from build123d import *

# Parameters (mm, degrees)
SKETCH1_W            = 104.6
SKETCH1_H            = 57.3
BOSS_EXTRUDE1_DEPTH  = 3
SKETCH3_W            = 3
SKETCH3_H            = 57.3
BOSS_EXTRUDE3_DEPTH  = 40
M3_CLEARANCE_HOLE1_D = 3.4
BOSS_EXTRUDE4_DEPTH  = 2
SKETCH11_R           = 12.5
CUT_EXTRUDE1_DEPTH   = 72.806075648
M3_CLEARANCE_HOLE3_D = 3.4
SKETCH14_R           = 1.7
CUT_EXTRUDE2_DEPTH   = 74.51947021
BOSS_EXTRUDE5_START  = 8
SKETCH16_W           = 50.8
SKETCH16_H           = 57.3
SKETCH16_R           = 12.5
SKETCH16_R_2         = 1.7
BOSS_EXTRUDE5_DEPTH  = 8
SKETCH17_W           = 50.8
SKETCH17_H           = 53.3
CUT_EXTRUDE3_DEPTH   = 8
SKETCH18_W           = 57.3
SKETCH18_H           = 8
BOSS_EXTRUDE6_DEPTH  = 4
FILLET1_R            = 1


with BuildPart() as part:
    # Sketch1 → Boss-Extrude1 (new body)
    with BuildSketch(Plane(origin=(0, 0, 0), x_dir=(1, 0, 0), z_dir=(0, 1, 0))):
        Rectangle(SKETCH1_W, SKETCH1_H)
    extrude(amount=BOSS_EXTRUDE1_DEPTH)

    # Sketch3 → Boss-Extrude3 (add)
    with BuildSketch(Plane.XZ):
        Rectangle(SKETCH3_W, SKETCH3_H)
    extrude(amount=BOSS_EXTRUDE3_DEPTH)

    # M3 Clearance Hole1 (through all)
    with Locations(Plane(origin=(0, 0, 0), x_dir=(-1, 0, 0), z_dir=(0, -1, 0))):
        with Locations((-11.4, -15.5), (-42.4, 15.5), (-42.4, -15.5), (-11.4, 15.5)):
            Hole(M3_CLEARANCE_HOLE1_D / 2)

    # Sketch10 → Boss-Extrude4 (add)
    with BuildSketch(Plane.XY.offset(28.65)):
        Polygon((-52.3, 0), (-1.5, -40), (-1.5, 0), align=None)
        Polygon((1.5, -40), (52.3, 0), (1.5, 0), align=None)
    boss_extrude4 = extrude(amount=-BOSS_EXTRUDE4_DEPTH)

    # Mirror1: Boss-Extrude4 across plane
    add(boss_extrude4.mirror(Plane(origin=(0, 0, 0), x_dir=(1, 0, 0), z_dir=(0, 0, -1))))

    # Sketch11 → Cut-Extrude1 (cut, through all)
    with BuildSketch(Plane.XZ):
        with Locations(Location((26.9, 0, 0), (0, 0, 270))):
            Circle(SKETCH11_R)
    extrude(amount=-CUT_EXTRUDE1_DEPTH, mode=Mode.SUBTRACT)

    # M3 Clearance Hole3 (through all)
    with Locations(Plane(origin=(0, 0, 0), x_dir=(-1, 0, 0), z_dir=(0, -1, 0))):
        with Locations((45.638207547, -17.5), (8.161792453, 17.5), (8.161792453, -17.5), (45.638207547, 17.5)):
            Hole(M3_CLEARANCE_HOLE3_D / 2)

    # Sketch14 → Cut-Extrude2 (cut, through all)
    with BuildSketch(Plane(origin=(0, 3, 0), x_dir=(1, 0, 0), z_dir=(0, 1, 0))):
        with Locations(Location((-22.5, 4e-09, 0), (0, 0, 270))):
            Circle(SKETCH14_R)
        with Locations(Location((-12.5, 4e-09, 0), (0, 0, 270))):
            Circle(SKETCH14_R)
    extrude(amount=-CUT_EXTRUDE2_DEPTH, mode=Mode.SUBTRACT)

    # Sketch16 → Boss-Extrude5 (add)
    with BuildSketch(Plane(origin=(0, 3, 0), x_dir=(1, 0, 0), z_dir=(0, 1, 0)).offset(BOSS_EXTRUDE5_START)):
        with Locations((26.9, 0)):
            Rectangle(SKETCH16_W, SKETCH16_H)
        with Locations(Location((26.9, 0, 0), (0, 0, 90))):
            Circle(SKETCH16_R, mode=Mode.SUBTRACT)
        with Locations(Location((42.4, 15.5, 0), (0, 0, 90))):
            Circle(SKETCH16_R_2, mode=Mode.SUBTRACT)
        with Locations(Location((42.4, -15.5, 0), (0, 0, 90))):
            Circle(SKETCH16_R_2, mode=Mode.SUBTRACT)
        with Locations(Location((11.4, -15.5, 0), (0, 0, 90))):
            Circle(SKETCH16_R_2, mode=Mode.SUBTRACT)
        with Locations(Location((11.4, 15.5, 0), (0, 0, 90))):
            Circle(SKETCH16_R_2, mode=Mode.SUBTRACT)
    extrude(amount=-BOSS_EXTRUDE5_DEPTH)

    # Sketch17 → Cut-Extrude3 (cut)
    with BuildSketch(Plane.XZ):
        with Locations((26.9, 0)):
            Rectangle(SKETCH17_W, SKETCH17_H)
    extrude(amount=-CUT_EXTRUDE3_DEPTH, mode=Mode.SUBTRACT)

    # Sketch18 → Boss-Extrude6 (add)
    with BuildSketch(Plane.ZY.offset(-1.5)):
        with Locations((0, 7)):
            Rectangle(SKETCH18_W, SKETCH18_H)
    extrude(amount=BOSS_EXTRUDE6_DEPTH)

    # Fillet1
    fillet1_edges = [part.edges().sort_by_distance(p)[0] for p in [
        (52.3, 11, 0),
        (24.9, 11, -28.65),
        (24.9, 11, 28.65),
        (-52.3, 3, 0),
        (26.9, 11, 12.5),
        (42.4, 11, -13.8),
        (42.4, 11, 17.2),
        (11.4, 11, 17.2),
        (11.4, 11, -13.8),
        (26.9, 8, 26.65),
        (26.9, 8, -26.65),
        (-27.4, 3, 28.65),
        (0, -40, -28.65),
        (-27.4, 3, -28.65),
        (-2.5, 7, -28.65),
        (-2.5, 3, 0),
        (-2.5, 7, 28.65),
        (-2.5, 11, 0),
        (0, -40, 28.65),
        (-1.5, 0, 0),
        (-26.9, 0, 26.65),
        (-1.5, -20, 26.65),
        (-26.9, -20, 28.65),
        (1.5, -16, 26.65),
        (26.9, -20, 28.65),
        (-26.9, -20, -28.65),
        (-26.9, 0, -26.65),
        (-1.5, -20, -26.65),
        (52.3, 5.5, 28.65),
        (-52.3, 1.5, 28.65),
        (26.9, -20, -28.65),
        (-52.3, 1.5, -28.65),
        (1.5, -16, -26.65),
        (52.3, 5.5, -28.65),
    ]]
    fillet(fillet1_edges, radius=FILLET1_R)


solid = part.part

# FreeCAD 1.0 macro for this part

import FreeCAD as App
import Part
import Sketcher

V = App.Vector


def edges_at(feature, points):
    """Names of the edges that pass closest to the given points."""
    edges = feature.Shape.Edges
    near = lambda p: min(range(len(edges)), key=lambda i: edges[i].distToShape(Part.Vertex(*p))[0])
    return sorted({f"Edge{near(p) + 1}" for p in points})


def add_polygon(sketch, points):
    """Adds a closed chain of lines whose ends are joined by coincident constraints."""
    first, n = sketch.GeometryCount, len(points)
    for a, b in zip(points, points[1:] + points[:1]):
        sketch.addGeometry(Part.LineSegment(App.Vector(*a, 0), App.Vector(*b, 0)), False)
    for i in range(n):
        sketch.addConstraint(Sketcher.Constraint("Coincident", first + i, 2, first + (i + 1) % n, 1))

doc = App.newDocument("Part")
body = doc.addObject("PartDesign::Body", "Body")

sketch1 = body.newObject("Sketcher::SketchObject", "Sketch")
sketch1.AttachmentSupport = (doc.getObject("XZ_Plane"), [""])
sketch1.MapMode = "FlatFace"
add_polygon(sketch1, [(-52, -29), (-52, 29), (52, 29), (52, -29)])
sketch1.addConstraint([
    Sketcher.Constraint("Vertical", 0),
    Sketcher.Constraint("Horizontal", 1),
    Sketcher.Constraint("Vertical", 2),
    Sketcher.Constraint("Horizontal", 3),
    Sketcher.Constraint("Symmetric", 0, 2, 2, 2, -1, 1),
    Sketcher.Constraint("DistanceX", 1, 1, 1, 2, 104.6),
    Sketcher.Constraint("DistanceY", 0, 1, 0, 2, 57.3),
])
pad1 = body.newObject("PartDesign::Pad", "Pad")
pad1.Profile = sketch1
pad1.Length = 3
pad1.Reversed = True

sketch2 = body.newObject("Sketcher::SketchObject", "Sketch001")
sketch2.AttachmentSupport = (doc.getObject("XZ_Plane"), [""])
sketch2.MapMode = "FlatFace"
add_polygon(sketch2, [(-1.5, 28.6), (-1.5, -28.6), (1.5, -28.6), (1.5, 28.6)])
sketch2.addConstraint([
    Sketcher.Constraint("Vertical", 0),
    Sketcher.Constraint("Horizontal", 1),
    Sketcher.Constraint("Vertical", 2),
    Sketcher.Constraint("Horizontal", 3),
    Sketcher.Constraint("Symmetric", 0, 2, 2, 2, -1, 1),
    Sketcher.Constraint("DistanceX", 1, 1, 1, 2, 3.0),
    Sketcher.Constraint("DistanceY", 0, 2, 0, 1, 57.3),
])
pad2 = body.newObject("PartDesign::Pad", "Pad001")
pad2.Profile = sketch2
pad2.Length = 40

sketch3 = body.newObject("Sketcher::SketchObject", "Sketch002")
sketch3.AttachmentSupport = (doc.getObject("XZ_Plane"), [""])
sketch3.MapMode = "FlatFace"
sketch3.addGeometry([
    Part.Circle(V(11.4, 15.5, 0), V(0, 0, 1), 1.7),
    Part.Circle(V(42.4, -15.5, 0), V(0, 0, 1), 1.7),
    Part.Circle(V(42.4, 15.5, 0), V(0, 0, 1), 1.7),
    Part.Circle(V(11.4, -15.5, 0), V(0, 0, 1), 1.7),
], False)
sketch3.addConstraint([
    Sketcher.Constraint("Equal", 0, 1),
    Sketcher.Constraint("Equal", 1, 2),
    Sketcher.Constraint("Equal", 2, 3),
    Sketcher.Constraint("Symmetric", 1, 3, 2, 3, -1),
    Sketcher.Constraint("Symmetric", 0, 3, 3, 3, -1),
    Sketcher.Constraint("Horizontal", 0, 3, 2, 3),
    Sketcher.Constraint("Diameter", 0, 3.4),
    Sketcher.Constraint("DistanceX", 0, 3, 1, 3, 31.0),
    Sketcher.Constraint("DistanceY", 1, 3, 0, 3, 31.0),
    Sketcher.Constraint("DistanceX", -1, 1, 0, 3, 11.4),
])
doc.recompute()
hole = body.newObject("PartDesign::Hole", "Hole")
hole.Profile = sketch3
hole.ThreadType = "None"
hole.Diameter = 3.4
hole.DepthType = "ThroughAll"

sketch4 = body.newObject("Sketcher::SketchObject", "Sketch003")
sketch4.AttachmentSupport = (doc.getObject("XY_Plane"), [""])
sketch4.MapMode = "FlatFace"
sketch4.AttachmentOffset = App.Placement(V(0, 0, 28.65), App.Rotation())
add_polygon(sketch4, [(-52, 0), (-2, -40), (-2, 0)])
add_polygon(sketch4, [(2, -40), (52, 0), (2, 0)])
sketch4.addConstraint([
    Sketcher.Constraint("Vertical", 1),
    Sketcher.Constraint("Horizontal", 2),
    Sketcher.Constraint("Horizontal", 4),
    Sketcher.Constraint("Vertical", 5),
    Sketcher.Constraint("Symmetric", 2, 2, 3, 2, -1, 1),
    Sketcher.Constraint("Symmetric", 1, 2, 4, 2, -2),
    Sketcher.Constraint("Horizontal", 0, 2, 5, 2),
    Sketcher.Constraint("DistanceY", 1, 1, 1, 2, 40.0),
    Sketcher.Constraint("DistanceX", 2, 2, 2, 1, 50.8),
    Sketcher.Constraint("DistanceX", 1, 2, 4, 2, 3.0),
])
pad3 = body.newObject("PartDesign::Pad", "Pad002")
pad3.Profile = sketch4
pad3.Length = 2
pad3.Reversed = True
doc.recompute()

mirrored = body.newObject("PartDesign::Mirrored", "Mirrored")
mirrored.Originals = [pad3]
mirrored.MirrorPlane = (doc.getObject("XY_Plane"), [""])
body.Tip = mirrored

sketch5 = body.newObject("Sketcher::SketchObject", "Sketch004")
sketch5.AttachmentSupport = (doc.getObject("XZ_Plane"), [""])
sketch5.MapMode = "FlatFace"
sketch5.addGeometry(Part.Circle(V(27, 0, 0), V(0, 0, 1), 12), False)
sketch5.addConstraint([
    Sketcher.Constraint("PointOnObject", 0, 3, -1),
    Sketcher.Constraint("Diameter", 0, 25.0),
    Sketcher.Constraint("DistanceX", -1, 1, 0, 3, 26.9),
])
pocket1 = body.newObject("PartDesign::Pocket", "Pocket")
pocket1.Profile = sketch5
pocket1.Type = "ThroughAll"

sketch6 = body.newObject("Sketcher::SketchObject", "Sketch005")
sketch6.AttachmentSupport = (doc.getObject("XZ_Plane"), [""])
sketch6.MapMode = "FlatFace"
sketch6.addGeometry([
    Part.Circle(V(-45.6, 17.5, 0), V(0, 0, 1), 1.7),
    Part.Circle(V(-8.2, -17.5, 0), V(0, 0, 1), 1.7),
    Part.Circle(V(-8.2, 17.5, 0), V(0, 0, 1), 1.7),
    Part.Circle(V(-45.6, -17.5, 0), V(0, 0, 1), 1.7),
], False)
sketch6.addConstraint([
    Sketcher.Constraint("Equal", 0, 1),
    Sketcher.Constraint("Equal", 1, 2),
    Sketcher.Constraint("Equal", 2, 3),
    Sketcher.Constraint("Symmetric", 1, 3, 2, 3, -1),
    Sketcher.Constraint("Symmetric", 0, 3, 3, 3, -1),
    Sketcher.Constraint("Horizontal", 0, 3, 2, 3),
    Sketcher.Constraint("Diameter", 0, 3.4),
    Sketcher.Constraint("DistanceY", 1, 3, 0, 3, 35.0),
    Sketcher.Constraint("DistanceX", 0, 3, -1, 1, 45.638208),
    Sketcher.Constraint("DistanceX", 1, 3, -1, 1, 8.161792),
])
doc.recompute()
hole2 = body.newObject("PartDesign::Hole", "Hole001")
hole2.Profile = sketch6
hole2.ThreadType = "None"
hole2.Diameter = 3.4
hole2.DepthType = "ThroughAll"

sketch7 = body.newObject("Sketcher::SketchObject", "Sketch006")
sketch7.AttachmentSupport = (doc.getObject("XZ_Plane"), [""])
sketch7.MapMode = "FlatFace"
sketch7.AttachmentOffset = App.Placement(V(0, 0, -3), App.Rotation())
sketch7.addGeometry([
    Part.Circle(V(-22.5, 0, 0), V(0, 0, 1), 1.7),
    Part.Circle(V(-12.5, 0, 0), V(0, 0, 1), 1.7),
], False)
sketch7.addConstraint([
    Sketcher.Constraint("Equal", 0, 1),
    Sketcher.Constraint("PointOnObject", 0, 3, -1),
    Sketcher.Constraint("PointOnObject", 1, 3, -1),
    Sketcher.Constraint("Diameter", 0, 3.4),
    Sketcher.Constraint("DistanceX", 0, 3, 1, 3, 10.0),
    Sketcher.Constraint("DistanceX", 0, 3, -1, 1, 22.5),
])
pocket2 = body.newObject("PartDesign::Pocket", "Pocket001")
pocket2.Profile = sketch7
pocket2.Type = "ThroughAll"
pocket2.Reversed = True

sketch8 = body.newObject("Sketcher::SketchObject", "Sketch007")
sketch8.AttachmentSupport = (doc.getObject("XZ_Plane"), [""])
sketch8.MapMode = "FlatFace"
sketch8.AttachmentOffset = App.Placement(V(0, 0, -11), App.Rotation())
add_polygon(sketch8, [(1.5, -28.6), (1.5, 28.6), (52.3, 28.6), (52.3, -28.6)])
sketch8.addGeometry(Part.Circle(V(11.4, 15.5, 0), V(0, 0, 1), 1.7), False)
sketch8.addGeometry(Part.Circle(V(42.4, 15.5, 0), V(0, 0, 1), 1.7), False)
sketch8.addGeometry(Part.Circle(V(11.4, -15.5, 0), V(0, 0, 1), 1.7), False)
sketch8.addGeometry(Part.Circle(V(26.9, 0, 0), V(0, 0, 1), 12.5), False)
sketch8.addGeometry(Part.Circle(V(42.4, -15.5, 0), V(0, 0, 1), 1.7), False)
sketch8.addConstraint([
    Sketcher.Constraint("Vertical", 0),
    Sketcher.Constraint("Horizontal", 1),
    Sketcher.Constraint("Vertical", 2),
    Sketcher.Constraint("Horizontal", 3),
    Sketcher.Constraint("Equal", 4, 5),
    Sketcher.Constraint("Equal", 5, 6),
    Sketcher.Constraint("Equal", 6, 8),
    Sketcher.Constraint("Symmetric", 4, 3, 6, 3, -1),
    Sketcher.Constraint("Symmetric", 5, 3, 8, 3, -1),
    Sketcher.Constraint("PointOnObject", 7, 3, -1),
    Sketcher.Constraint("Horizontal", 4, 3, 5, 3),
    Sketcher.Constraint("Diameter", 7, 25.0),
    Sketcher.Constraint("Diameter", 4, 3.4),
    Sketcher.Constraint("DistanceX", 1, 1, 1, 2, 50.8),
    Sketcher.Constraint("DistanceY", 0, 1, 0, 2, 57.3),
    Sketcher.Constraint("DistanceX", 4, 3, 5, 3, 31.0),
    Sketcher.Constraint("DistanceY", 6, 3, 4, 3, 31.0),
    Sketcher.Constraint("DistanceX", -1, 1, 4, 3, 11.4),
    Sketcher.Constraint("DistanceX", -1, 1, 7, 3, 26.9),
    Sketcher.Constraint("DistanceX", -1, 1, 0, 2, 1.5),
    Sketcher.Constraint("DistanceY", -1, 1, 0, 2, 28.65),
])
pad4 = body.newObject("PartDesign::Pad", "Pad003")
pad4.Profile = sketch8
pad4.Length = 8

sketch9 = body.newObject("Sketcher::SketchObject", "Sketch008")
sketch9.AttachmentSupport = (doc.getObject("XZ_Plane"), [""])
sketch9.MapMode = "FlatFace"
add_polygon(sketch9, [(2, 27), (2, -27), (52, -27), (52, 27)])
sketch9.addConstraint([
    Sketcher.Constraint("Vertical", 0),
    Sketcher.Constraint("Horizontal", 1),
    Sketcher.Constraint("Vertical", 2),
    Sketcher.Constraint("Horizontal", 3),
    Sketcher.Constraint("DistanceX", 1, 1, 1, 2, 50.8),
    Sketcher.Constraint("DistanceY", 0, 2, 0, 1, 53.3),
    Sketcher.Constraint("DistanceX", -1, 1, 0, 2, 1.5),
    Sketcher.Constraint("DistanceY", 0, 2, -1, 1, 26.65),
])
pocket3 = body.newObject("PartDesign::Pocket", "Pocket002")
pocket3.Profile = sketch9
pocket3.Length = 8

sketch10 = body.newObject("Sketcher::SketchObject", "Sketch009")
sketch10.AttachmentSupport = (doc.getObject("YZ_Plane"), [""])
sketch10.MapMode = "FlatFace"
sketch10.AttachmentOffset = App.Placement(V(0, 0, 1.5), App.Rotation())
add_polygon(sketch10, [(11, -29), (3, -29), (3, 29), (11, 29)])
sketch10.addConstraint([
    Sketcher.Constraint("Horizontal", 0),
    Sketcher.Constraint("Vertical", 1),
    Sketcher.Constraint("Horizontal", 2),
    Sketcher.Constraint("Vertical", 3),
    Sketcher.Constraint("DistanceX", 0, 2, 0, 1, 8.0),
    Sketcher.Constraint("DistanceY", 1, 1, 1, 2, 57.3),
    Sketcher.Constraint("DistanceX", -1, 1, 0, 2, 3.0),
    Sketcher.Constraint("DistanceY", 0, 2, -1, 1, 28.65),
])
pad5 = body.newObject("PartDesign::Pad", "Pad004")
pad5.Profile = sketch10
pad5.Length = 4
pad5.Reversed = True
doc.recompute()

fillet = body.newObject("PartDesign::Fillet", "Fillet")
fillet.Base = (pad5, edges_at(pad5, [
    (52.3, 11, 0),
    (24.9, 11, -28.65),
    (24.9, 11, 28.65),
    (-52.3, 3, 0),
    (26.9, 11, 12.5),
    (42.4, 11, -13.8),
    (42.4, 11, 17.2),
    (11.4, 11, 17.2),
    (11.4, 11, -13.8),
    (26.9, 8, 26.65),
    (26.9, 8, -26.65),
    (-27.4, 3, 28.65),
    (0, -40, -28.65),
    (-27.4, 3, -28.65),
    (-2.5, 7, -28.65),
    (-2.5, 3, 0),
    (-2.5, 7, 28.65),
    (-2.5, 11, 0),
    (0, -40, 28.65),
    (-1.5, 0, 0),
    (-26.9, 0, 26.65),
    (-1.5, -20, 26.65),
    (-26.9, -20, 28.65),
    (1.5, -16, 26.65),
    (26.9, -20, 28.65),
    (-26.9, -20, -28.65),
    (-26.9, 0, -26.65),
    (-1.5, -20, -26.65),
    (52.3, 5.5, 28.65),
    (-52.3, 1.5, 28.65),
    (26.9, -20, -28.65),
    (-52.3, 1.5, -28.65),
    (1.5, -16, -26.65),
    (52.3, 5.5, -28.65),
]))
fillet.Radius = 1

doc.recompute()
